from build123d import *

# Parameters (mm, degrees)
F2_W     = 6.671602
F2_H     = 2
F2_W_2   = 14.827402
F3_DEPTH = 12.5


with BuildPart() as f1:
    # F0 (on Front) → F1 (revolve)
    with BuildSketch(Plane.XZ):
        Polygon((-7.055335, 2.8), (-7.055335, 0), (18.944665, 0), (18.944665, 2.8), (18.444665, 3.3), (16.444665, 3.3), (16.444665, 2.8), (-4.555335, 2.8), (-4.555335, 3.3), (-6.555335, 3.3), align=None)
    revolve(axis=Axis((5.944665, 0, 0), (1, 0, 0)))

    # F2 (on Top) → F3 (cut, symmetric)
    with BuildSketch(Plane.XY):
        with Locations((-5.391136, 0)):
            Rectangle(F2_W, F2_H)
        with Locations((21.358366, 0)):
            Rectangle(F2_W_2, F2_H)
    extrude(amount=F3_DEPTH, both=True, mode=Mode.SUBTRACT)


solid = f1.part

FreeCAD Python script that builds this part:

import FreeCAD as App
import Part
import Sketcher
Q = App.Units.Quantity


def add_polygon(sketch, points):
    """Adds a closed chain of lines whose ends are joined by coincident constraints."""
    first, n = sketch.GeometryCount, len(points)
    for a, b in zip(points, points[1:] + points[:1]):
        sketch.addGeometry(Part.LineSegment(App.Vector(*a, 0), App.Vector(*b, 0)), False)
    for i in range(n):
        sketch.addConstraint(Sketcher.Constraint("Coincident", first + i, 2, first + (i + 1) % n, 1))

doc = App.newDocument("Part")
body = doc.addObject("PartDesign::Body", "Body")

# Sketch on XZ plane
sketch1 = body.newObject("Sketcher::SketchObject", "Sketch")
sketch1.AttachmentSupport = (doc.getObject("XZ_Plane"), [""])
sketch1.MapMode = "FlatFace"
add_polygon(sketch1, [(-7.1, 2.8), (-7.1, 0), (18.9, 0), (18.9, 2.8), (18.4, 3.3), (16.4, 3.3), (16.4, 2.8), (-4.6, 2.8), (-4.6, 3.3), (-6.6, 3.3)])  # lines 0-9
sketch1.addConstraint([
    Sketcher.Constraint("Vertical", 0),
    Sketcher.Constraint("Horizontal", 1),
    Sketcher.Constraint("Vertical", 2),
    Sketcher.Constraint("Horizontal", 4),
    Sketcher.Constraint("Vertical", 5),
    Sketcher.Constraint("Horizontal", 6),
    Sketcher.Constraint("Vertical", 7),
    Sketcher.Constraint("Horizontal", 8),
    Sketcher.Constraint("PointOnObject", 0, 2, -1),
    Sketcher.Constraint("Perpendicular", 3, 9),
    Sketcher.Constraint("Horizontal", 2, 2, 5, 2),
    Sketcher.Constraint("Horizontal", 4, 2, 7, 2),
    Sketcher.Constraint("Horizontal", 6, 2, 9, 2),
    Sketcher.Constraint("Equal", 4, 8),
    Sketcher.Constraint("Equal", 3, 9),
    Sketcher.Constraint("DistanceX", 1, 1, 1, 2, Q("26 mm")),
    Sketcher.Constraint("DistanceX", 4, 2, 4, 1, Q("2 mm")),
    Sketcher.Constraint("DistanceX", 6, 2, 6, 1, Q("21 mm")),
    Sketcher.Constraint("DistanceY", 0, 2, 0, 1, Q("2.8 mm")),
    Sketcher.Constraint("DistanceX", 0, 2, -1, 1, Q("7.055335 mm")),
])
revolution = body.newObject("PartDesign::Revolution", "Revolution")
revolution.Profile = sketch1
revolution.ReferenceAxis = (sketch1, ["H_Axis"])
revolution.Angle = 360

# Sketch on XY plane
sketch2 = body.newObject("Sketcher::SketchObject", "Sketch001")
sketch2.AttachmentSupport = (doc.getObject("XY_Plane"), [""])
sketch2.MapMode = "FlatFace"
add_polygon(sketch2, [(-8.7, 1), (-8.7, -1), (-2.1, -1), (-2.1, 1)])  # lines 0-3
add_polygon(sketch2, [(13.9, 1), (13.9, -1), (28.8, -1), (28.8, 1)])  # lines 4-7
sketch2.addConstraint([
    Sketcher.Constraint("Vertical", 0),
    Sketcher.Constraint("Horizontal", 1),
    Sketcher.Constraint("Vertical", 2),
    Sketcher.Constraint("Horizontal", 3),
    Sketcher.Constraint("Vertical", 4),
    Sketcher.Constraint("Horizontal", 5),
    Sketcher.Constraint("Vertical", 6),
    Sketcher.Constraint("Horizontal", 7),
    Sketcher.Constraint("Horizontal", 1, 2, 4, 2),
    Sketcher.Constraint("Horizontal", 3, 2, 6, 2),
    Sketcher.Constraint("DistanceY", 0, 2, 0, 1, Q("2 mm")),
    Sketcher.Constraint("DistanceY", 0, 2, -1, 1, Q("1 mm")),
    Sketcher.Constraint("DistanceX", 1, 2, 4, 2, Q("16 mm")),
    Sketcher.Constraint("DistanceX", 5, 1, 5, 2, Q("14.827402 mm")),
    Sketcher.Constraint("DistanceX", 0, 2, 4, 2, Q("22.671602 mm")),
    Sketcher.Constraint("DistanceX", 0, 2, -1, 1, Q("8.726937 mm")),
])
pocket1 = body.newObject("PartDesign::Pocket", "Pocket")
pocket1.Profile = sketch2
pocket1.Length = 25
pocket1.Midplane = True

doc.recompute()
